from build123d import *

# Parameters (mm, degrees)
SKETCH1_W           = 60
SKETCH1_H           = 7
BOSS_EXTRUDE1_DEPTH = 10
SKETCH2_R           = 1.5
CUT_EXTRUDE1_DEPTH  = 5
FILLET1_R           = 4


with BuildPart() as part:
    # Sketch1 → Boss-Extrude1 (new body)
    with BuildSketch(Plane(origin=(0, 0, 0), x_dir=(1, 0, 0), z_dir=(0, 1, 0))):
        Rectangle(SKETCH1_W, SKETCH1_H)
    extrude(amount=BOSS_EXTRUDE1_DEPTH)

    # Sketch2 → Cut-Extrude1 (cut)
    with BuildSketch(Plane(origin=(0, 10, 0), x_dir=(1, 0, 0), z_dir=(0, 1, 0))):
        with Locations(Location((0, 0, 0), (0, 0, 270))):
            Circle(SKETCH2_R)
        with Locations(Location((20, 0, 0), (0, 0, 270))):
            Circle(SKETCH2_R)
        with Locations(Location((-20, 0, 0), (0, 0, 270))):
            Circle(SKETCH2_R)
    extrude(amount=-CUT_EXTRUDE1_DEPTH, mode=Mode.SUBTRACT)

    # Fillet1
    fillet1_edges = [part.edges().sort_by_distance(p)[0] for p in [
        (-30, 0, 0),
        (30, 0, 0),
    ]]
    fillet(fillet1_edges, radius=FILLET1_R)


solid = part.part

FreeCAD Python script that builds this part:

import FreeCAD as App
import Part
import Sketcher
Q = App.Units.Quantity


def edges_at(feature, points):
    """Names of the edges that pass closest to the given points."""
    edges = feature.Shape.Edges
    near = lambda p: min(range(len(edges)), key=lambda i: edges[i].distToShape(Part.Vertex(*p))[0])
    return sorted({f"Edge{near(p) + 1}" for p in points})

doc = App.newDocument("Part")
body = doc.addObject("PartDesign::Body", "Body")

sketch1 = body.newObject("Sketcher::SketchObject", "Sketch")
sketch1.AttachmentSupport = (doc.getObject("XZ_Plane"), [""])
sketch1.MapMode = "FlatFace"
sketch1.addGeometry(Part.LineSegment(App.Vector(-30, -4, 0), App.Vector(-30, 4, 0)), False)
sketch1.addGeometry(Part.LineSegment(App.Vector(-30, 4, 0), App.Vector(30, 4, 0)), False)
sketch1.addGeometry(Part.LineSegment(App.Vector(30, 4, 0), App.Vector(30, -4, 0)), False)
sketch1.addGeometry(Part.LineSegment(App.Vector(30, -4, 0), App.Vector(-30, -4, 0)), False)
sketch1.addConstraint(Sketcher.Constraint("Coincident", 0, 2, 1, 1))
sketch1.addConstraint(Sketcher.Constraint("Coincident", 1, 2, 2, 1))
sketch1.addConstraint(Sketcher.Constraint("Coincident", 2, 2, 3, 1))
sketch1.addConstraint(Sketcher.Constraint("Coincident", 3, 2, 0, 1))
sketch1.addConstraint(Sketcher.Constraint("Vertical", 0))
sketch1.addConstraint(Sketcher.Constraint("Horizontal", 1))
sketch1.addConstraint(Sketcher.Constraint("Vertical", 2))
sketch1.addConstraint(Sketcher.Constraint("Horizontal", 3))
sketch1.addConstraint(Sketcher.Constraint("Symmetric", 0, 2, 2, 2, -1, 1))
sketch1.addConstraint(Sketcher.Constraint("DistanceX", 1, 1, 1, 2, Q("60 mm")))
sketch1.addConstraint(Sketcher.Constraint("DistanceY", 0, 1, 0, 2, Q("7 mm")))
pad1 = body.newObject("PartDesign::Pad", "Pad")
pad1.Profile = sketch1
pad1.Length = 10
pad1.Reversed = True

sketch2 = body.newObject("Sketcher::SketchObject", "Sketch001")
sketch2.AttachmentSupport = (doc.getObject("XZ_Plane"), [""])
sketch2.MapMode = "FlatFace"
sketch2.AttachmentOffset = App.Placement(App.Vector(0, 0, -10), App.Rotation())
sketch2.addGeometry(Part.Circle(App.Vector(0, 0, 0), App.Vector(0, 0, 1), 1.5), False)
sketch2.addGeometry(Part.Circle(App.Vector(20, 0, 0), App.Vector(0, 0, 1), 1.5), False)
sketch2.addGeometry(Part.Circle(App.Vector(-20, 0, 0), App.Vector(0, 0, 1), 1.5), False)
sketch2.addConstraint(Sketcher.Constraint("Coincident", 0, 3, -1, 1))
sketch2.addConstraint(Sketcher.Constraint("Equal", 0, 1))
sketch2.addConstraint(Sketcher.Constraint("Equal", 1, 2))
sketch2.addConstraint(Sketcher.Constraint("Symmetric", 1, 3, 2, 3, -1, 1))
sketch2.addConstraint(Sketcher.Constraint("PointOnObject", 1, 3, -1))
sketch2.addConstraint(Sketcher.Constraint("Diameter", 0, Q("3 mm")))
sketch2.addConstraint(Sketcher.Constraint("DistanceX", -1, 1, 1, 3, Q("20 mm")))
pocket1 = body.newObject("PartDesign::Pocket", "Pocket")
pocket1.Profile = sketch2
pocket1.Length = 5
pocket1.Reversed = True
doc.recompute()

fillet = body.newObject("PartDesign::Fillet", "Fillet")
fillet.Base = (pocket1, edges_at(pocket1, [(-30, 0, 0), (30, 0, 0)]))
fillet.Radius = 4

doc.recompute()
